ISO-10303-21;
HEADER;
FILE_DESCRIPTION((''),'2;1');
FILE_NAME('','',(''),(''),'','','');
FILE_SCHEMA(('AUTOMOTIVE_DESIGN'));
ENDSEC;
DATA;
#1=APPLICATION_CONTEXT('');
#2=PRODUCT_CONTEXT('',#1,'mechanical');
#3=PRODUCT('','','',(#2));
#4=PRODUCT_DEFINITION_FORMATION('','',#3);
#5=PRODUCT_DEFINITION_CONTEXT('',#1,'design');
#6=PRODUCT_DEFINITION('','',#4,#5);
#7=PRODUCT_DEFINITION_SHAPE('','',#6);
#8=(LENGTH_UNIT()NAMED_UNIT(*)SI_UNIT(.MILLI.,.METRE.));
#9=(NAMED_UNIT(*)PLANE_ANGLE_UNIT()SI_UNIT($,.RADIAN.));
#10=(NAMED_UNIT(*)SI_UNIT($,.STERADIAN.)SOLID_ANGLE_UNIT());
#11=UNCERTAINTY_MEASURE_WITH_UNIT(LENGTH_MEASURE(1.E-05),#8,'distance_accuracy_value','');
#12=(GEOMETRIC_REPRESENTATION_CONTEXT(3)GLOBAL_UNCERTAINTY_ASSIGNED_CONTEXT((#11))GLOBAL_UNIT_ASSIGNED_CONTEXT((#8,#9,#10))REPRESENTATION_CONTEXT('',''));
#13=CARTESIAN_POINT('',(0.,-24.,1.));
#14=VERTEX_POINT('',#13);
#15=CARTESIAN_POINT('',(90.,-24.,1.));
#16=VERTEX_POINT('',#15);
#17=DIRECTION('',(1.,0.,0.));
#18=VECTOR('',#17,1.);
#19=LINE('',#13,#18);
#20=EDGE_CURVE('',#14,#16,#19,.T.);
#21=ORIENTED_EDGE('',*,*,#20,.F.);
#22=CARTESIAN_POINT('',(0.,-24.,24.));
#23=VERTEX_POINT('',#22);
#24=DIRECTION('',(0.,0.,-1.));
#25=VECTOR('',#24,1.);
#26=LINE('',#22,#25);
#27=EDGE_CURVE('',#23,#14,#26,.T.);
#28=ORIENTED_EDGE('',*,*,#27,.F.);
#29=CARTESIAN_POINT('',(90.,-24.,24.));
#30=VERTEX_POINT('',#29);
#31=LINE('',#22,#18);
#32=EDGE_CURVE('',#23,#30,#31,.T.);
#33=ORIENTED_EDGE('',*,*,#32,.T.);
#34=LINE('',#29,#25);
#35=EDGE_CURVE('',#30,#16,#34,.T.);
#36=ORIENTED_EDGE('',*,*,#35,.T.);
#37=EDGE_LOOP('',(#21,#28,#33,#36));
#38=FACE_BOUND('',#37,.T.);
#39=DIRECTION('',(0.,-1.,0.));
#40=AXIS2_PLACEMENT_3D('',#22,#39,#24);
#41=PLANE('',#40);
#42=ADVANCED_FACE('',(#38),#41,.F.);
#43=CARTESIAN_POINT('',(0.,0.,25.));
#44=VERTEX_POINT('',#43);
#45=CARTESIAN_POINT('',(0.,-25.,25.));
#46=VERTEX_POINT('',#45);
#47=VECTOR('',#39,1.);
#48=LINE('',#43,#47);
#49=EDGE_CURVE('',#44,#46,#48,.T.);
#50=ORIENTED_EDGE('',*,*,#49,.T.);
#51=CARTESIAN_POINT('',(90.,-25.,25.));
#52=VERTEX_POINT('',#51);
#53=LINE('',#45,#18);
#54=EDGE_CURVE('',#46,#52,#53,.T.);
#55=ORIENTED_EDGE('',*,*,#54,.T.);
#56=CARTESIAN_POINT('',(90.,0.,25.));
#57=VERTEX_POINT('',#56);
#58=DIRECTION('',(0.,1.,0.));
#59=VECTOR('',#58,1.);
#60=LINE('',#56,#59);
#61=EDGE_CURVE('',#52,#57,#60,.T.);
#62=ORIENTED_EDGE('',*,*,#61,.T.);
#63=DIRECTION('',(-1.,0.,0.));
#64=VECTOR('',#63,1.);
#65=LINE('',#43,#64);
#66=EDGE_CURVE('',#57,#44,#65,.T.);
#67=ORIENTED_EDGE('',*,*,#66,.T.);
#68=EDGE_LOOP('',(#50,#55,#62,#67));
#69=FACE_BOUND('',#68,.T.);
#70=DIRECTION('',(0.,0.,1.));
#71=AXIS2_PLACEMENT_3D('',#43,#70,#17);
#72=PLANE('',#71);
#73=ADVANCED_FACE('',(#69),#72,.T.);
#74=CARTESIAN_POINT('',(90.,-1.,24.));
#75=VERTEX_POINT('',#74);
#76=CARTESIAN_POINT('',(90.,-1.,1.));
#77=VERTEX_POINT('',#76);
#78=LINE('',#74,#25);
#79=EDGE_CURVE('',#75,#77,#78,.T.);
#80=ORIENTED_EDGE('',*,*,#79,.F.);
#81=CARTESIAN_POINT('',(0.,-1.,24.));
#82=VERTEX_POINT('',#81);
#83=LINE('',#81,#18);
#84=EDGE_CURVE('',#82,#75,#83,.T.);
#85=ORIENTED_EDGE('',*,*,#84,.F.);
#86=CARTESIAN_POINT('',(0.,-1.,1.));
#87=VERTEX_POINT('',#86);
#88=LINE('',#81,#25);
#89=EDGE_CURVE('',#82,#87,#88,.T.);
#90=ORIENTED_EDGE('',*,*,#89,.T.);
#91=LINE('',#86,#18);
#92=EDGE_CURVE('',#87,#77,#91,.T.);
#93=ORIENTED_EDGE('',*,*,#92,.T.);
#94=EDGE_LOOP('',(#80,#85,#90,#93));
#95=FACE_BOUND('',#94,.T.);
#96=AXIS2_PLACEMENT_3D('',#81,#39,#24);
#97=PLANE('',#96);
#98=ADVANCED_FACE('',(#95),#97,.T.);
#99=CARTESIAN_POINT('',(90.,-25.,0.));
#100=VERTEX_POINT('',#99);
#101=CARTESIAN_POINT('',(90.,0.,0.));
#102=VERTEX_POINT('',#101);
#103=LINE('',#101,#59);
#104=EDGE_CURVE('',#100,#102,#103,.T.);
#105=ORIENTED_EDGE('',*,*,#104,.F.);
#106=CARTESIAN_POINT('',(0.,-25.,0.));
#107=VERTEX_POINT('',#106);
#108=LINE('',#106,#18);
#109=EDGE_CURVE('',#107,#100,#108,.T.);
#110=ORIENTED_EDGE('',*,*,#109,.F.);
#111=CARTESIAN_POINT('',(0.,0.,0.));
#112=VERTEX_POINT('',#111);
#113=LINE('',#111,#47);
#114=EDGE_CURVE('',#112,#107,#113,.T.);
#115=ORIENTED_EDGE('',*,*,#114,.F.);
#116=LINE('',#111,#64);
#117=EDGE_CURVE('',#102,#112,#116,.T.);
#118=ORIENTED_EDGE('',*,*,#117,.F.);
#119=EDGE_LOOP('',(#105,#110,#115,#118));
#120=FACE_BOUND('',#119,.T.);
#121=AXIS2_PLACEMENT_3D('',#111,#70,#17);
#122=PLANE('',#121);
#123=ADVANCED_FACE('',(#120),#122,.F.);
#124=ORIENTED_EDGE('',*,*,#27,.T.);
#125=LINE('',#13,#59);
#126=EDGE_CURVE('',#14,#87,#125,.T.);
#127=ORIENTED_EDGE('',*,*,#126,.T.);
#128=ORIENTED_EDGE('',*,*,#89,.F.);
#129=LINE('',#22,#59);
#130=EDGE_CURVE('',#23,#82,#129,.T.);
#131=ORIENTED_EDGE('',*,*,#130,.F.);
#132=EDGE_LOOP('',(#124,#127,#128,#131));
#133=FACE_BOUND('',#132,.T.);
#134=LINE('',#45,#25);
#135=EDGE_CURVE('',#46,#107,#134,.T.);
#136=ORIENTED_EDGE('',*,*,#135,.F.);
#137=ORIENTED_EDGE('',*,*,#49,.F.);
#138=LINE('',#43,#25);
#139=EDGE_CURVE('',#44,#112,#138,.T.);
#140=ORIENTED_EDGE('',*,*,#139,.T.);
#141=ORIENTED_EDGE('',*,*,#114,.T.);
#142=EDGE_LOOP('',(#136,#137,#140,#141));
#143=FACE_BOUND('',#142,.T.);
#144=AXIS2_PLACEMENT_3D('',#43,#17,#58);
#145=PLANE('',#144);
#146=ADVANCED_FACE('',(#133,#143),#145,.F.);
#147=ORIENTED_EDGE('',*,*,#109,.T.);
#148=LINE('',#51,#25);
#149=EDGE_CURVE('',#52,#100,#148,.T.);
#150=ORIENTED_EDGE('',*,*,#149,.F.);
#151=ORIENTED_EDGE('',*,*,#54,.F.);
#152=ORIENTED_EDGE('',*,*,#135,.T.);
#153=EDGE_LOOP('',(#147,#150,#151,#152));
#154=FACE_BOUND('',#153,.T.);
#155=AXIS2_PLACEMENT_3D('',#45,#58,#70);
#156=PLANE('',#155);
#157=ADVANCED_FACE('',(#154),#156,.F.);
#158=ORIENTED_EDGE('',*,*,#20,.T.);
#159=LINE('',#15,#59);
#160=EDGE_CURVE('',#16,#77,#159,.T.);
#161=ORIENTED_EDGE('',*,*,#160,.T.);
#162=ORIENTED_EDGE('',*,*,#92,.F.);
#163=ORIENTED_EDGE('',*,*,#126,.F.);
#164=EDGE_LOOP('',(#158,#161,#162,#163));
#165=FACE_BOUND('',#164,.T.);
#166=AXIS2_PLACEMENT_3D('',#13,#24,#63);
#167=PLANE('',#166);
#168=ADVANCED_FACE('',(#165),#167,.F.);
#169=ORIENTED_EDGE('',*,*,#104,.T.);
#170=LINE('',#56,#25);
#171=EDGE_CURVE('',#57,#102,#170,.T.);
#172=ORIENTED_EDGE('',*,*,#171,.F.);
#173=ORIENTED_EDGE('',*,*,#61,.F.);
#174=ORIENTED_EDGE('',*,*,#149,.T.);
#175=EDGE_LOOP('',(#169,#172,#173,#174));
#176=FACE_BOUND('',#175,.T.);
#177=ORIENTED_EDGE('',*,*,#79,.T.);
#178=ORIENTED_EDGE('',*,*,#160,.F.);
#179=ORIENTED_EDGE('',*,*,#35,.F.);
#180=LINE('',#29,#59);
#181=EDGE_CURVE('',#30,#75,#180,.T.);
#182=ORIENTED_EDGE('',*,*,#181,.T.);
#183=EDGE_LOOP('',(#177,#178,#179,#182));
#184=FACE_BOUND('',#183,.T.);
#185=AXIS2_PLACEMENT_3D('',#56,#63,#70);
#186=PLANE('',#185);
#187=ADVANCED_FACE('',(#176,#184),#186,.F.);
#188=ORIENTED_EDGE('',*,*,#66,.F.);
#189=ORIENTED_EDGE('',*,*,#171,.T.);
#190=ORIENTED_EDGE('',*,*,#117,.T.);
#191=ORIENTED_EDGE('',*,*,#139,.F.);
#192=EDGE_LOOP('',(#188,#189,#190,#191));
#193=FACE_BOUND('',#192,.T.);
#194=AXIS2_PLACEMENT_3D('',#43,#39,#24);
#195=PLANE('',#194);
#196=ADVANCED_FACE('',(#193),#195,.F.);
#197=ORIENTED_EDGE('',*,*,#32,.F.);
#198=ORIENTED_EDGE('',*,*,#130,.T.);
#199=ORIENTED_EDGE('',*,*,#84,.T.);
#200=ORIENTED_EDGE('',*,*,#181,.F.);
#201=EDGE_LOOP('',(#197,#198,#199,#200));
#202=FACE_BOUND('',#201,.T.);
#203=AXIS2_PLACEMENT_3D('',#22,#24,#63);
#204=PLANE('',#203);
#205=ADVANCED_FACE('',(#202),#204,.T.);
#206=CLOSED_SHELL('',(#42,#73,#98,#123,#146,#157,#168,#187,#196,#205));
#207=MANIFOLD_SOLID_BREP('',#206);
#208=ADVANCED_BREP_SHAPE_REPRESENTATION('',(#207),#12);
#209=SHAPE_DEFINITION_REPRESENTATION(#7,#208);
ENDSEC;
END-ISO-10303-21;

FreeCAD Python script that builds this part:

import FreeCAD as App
import Part
import Sketcher
from FreeCAD import Vector
Q = App.Units.Quantity


def add_polygon(sketch, points):
    """Adds a closed chain of lines whose ends are joined by coincident constraints."""
    first, n = sketch.GeometryCount, len(points)
    for a, b in zip(points, points[1:] + points[:1]):
        sketch.addGeometry(Part.LineSegment(App.Vector(*a, 0), App.Vector(*b, 0)), False)
    for i in range(n):
        sketch.addConstraint(Sketcher.Constraint("Coincident", first + i, 2, first + (i + 1) % n, 1))

doc = App.newDocument("Part")
params = doc.addObject("Spreadsheet::Sheet", "Params")
for row, (alias, value) in enumerate([
    ("sketch1_width", "90 mm"),
    ("sketch1_height", "25 mm"),
    ("pad1_length", "25 mm"),
    ("sketch2_width", "23 mm"),
], start=1):
    params.set(f"A{row}", alias)
    params.set(f"B{row}", "=" + value)
    params.setAlias(f"B{row}", alias)

body = doc.addObject("PartDesign::Body", "Body")

# Sketch on XY plane
sketch1 = body.newObject("Sketcher::SketchObject", "Sketch")
sketch1.AttachmentSupport = (doc.getObject("XY_Plane"), [""])
sketch1.MapMode = "FlatFace"
add_polygon(sketch1, [(0, 0), (0, -25), (90, -25), (90, 0)])  # lines 0-3
sketch1.addConstraint(Sketcher.Constraint("Vertical", 0))
sketch1.addConstraint(Sketcher.Constraint("Horizontal", 1))
sketch1.addConstraint(Sketcher.Constraint("Vertical", 2))
sketch1.addConstraint(Sketcher.Constraint("Horizontal", 3))
sketch1.addConstraint(Sketcher.Constraint("Coincident", 3, 2, -1, 1))
sketch1.addConstraint(Sketcher.Constraint("DistanceX", 1, 1, 1, 2, Q("90 mm")))
sketch1.addConstraint(Sketcher.Constraint("DistanceY", 0, 2, 0, 1, Q("25 mm")))
sketch1.setExpression("Constraints[9]", "Params.sketch1_width")
sketch1.setExpression("Constraints[10]", "Params.sketch1_height")
pad1 = body.newObject("PartDesign::Pad", "Pad")
pad1.Profile = sketch1
pad1.setExpression("Length", "Params.pad1_length")

# Sketch on YZ plane
sketch2 = body.newObject("Sketcher::SketchObject", "Sketch001")
sketch2.AttachmentSupport = (doc.getObject("YZ_Plane"), [""])
sketch2.MapMode = "FlatFace"
sketch2.AttachmentOffset = App.Placement(Vector(0, 0, 90), App.Rotation())
add_polygon(sketch2, [(-1, 24), (-24, 24), (-24, 1), (-1, 1)])  # lines 0-3
sketch2.addConstraint(Sketcher.Constraint("Horizontal", 0))
sketch2.addConstraint(Sketcher.Constraint("Vertical", 1))
sketch2.addConstraint(Sketcher.Constraint("Horizontal", 2))
sketch2.addConstraint(Sketcher.Constraint("Vertical", 3))
sketch2.addConstraint(Sketcher.Constraint("Equal", 2, 1))
sketch2.addConstraint(Sketcher.Constraint("DistanceX", 0, 2, 0, 1, Q("23 mm")))
sketch2.addConstraint(Sketcher.Constraint("DistanceX", 0, 2, -1, 1, Q("24 mm")))
sketch2.addConstraint(Sketcher.Constraint("DistanceY", -1, 1, 0, 2, Q("24 mm")))
sketch2.setExpression("Constraints[9]", "Params.sketch2_width")
pocket1 = body.newObject("PartDesign::Pocket", "Pocket")
pocket1.Profile = sketch2
pocket1.Type = "ThroughAll"

doc.recompute()
